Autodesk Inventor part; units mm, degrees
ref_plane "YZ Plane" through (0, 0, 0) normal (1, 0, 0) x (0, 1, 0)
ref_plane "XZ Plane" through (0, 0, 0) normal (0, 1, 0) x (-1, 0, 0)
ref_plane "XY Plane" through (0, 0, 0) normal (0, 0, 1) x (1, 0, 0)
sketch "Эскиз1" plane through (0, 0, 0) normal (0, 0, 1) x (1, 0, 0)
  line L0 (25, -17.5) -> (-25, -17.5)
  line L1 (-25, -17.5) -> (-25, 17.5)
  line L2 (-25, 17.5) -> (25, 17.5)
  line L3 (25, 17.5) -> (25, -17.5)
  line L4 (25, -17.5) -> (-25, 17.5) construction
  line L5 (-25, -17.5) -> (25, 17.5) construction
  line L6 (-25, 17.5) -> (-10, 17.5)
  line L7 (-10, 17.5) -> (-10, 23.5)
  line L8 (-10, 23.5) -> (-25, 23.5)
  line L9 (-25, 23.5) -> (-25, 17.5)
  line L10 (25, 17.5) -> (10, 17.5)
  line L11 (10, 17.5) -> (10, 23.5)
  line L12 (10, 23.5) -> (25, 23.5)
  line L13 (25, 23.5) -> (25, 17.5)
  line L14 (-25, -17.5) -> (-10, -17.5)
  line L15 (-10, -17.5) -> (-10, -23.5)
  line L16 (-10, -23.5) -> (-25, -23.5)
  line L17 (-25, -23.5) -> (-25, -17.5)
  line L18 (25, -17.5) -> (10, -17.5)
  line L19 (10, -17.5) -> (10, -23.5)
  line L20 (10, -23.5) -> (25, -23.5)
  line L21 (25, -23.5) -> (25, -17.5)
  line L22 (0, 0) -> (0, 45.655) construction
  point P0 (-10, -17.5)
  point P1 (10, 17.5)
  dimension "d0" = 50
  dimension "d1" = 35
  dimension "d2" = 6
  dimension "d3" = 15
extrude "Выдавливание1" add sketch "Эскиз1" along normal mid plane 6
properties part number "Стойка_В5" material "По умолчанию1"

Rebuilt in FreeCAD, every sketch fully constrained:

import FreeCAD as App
import Part
import Sketcher

V = App.Vector

doc = App.newDocument("Part")
body = doc.addObject("PartDesign::Body", "Body")

# Sketch on XY plane
sketch1 = doc.addObject("Sketcher::SketchObject", "Sketch")
body.addObject(sketch1)
sketch1.AttachmentSupport = (doc.XY_Plane, [""])
sketch1.MapMode = "FlatFace"
sketch1.addGeometry([
    Part.LineSegment(V(25, -24, 0), V(25, 24, 0)),  # 0
    Part.LineSegment(V(25, 24, 0), V(10, 24, 0)),  # 1
    Part.LineSegment(V(10, 24, 0), V(10, 18, 0)),  # 2
    Part.LineSegment(V(10, 18, 0), V(-10, 18, 0)),  # 3
    Part.LineSegment(V(-10, 18, 0), V(-10, 24, 0)),  # 4
    Part.LineSegment(V(-10, 24, 0), V(-25, 24, 0)),  # 5
    Part.LineSegment(V(-25, 24, 0), V(-25, -24, 0)),  # 6
    Part.LineSegment(V(-25, -24, 0), V(-10, -24, 0)),  # 7
    Part.LineSegment(V(-10, -24, 0), V(-10, -18, 0)),  # 8
    Part.LineSegment(V(-10, -18, 0), V(10, -18, 0)),  # 9
    Part.LineSegment(V(10, -18, 0), V(10, -24, 0)),  # 10
    Part.LineSegment(V(10, -24, 0), V(25, -24, 0)),  # 11
], False)
sketch1.addConstraint([
    Sketcher.Constraint("Coincident", 0, 2, 1, 1),
    Sketcher.Constraint("Coincident", 1, 2, 2, 1),
    Sketcher.Constraint("Coincident", 2, 2, 3, 1),
    Sketcher.Constraint("Coincident", 3, 2, 4, 1),
    Sketcher.Constraint("Coincident", 4, 2, 5, 1),
    Sketcher.Constraint("Coincident", 5, 2, 6, 1),
    Sketcher.Constraint("Coincident", 6, 2, 7, 1),
    Sketcher.Constraint("Coincident", 7, 2, 8, 1),
    Sketcher.Constraint("Coincident", 8, 2, 9, 1),
    Sketcher.Constraint("Coincident", 9, 2, 10, 1),
    Sketcher.Constraint("Coincident", 10, 2, 11, 1),
    Sketcher.Constraint("Coincident", 11, 2, 0, 1),
    Sketcher.Constraint("Vertical", 0),
    Sketcher.Constraint("Horizontal", 1),
    Sketcher.Constraint("Vertical", 2),
    Sketcher.Constraint("Horizontal", 3),
    Sketcher.Constraint("Vertical", 4),
    Sketcher.Constraint("Horizontal", 5),
    Sketcher.Constraint("Vertical", 6),
    Sketcher.Constraint("Horizontal", 7),
    Sketcher.Constraint("Vertical", 8),
    Sketcher.Constraint("Horizontal", 9),
    Sketcher.Constraint("Vertical", 10),
    Sketcher.Constraint("Horizontal", 11),
    Sketcher.Constraint("Symmetric", 0, 2, 6, 2, -1, 1),
    Sketcher.Constraint("Symmetric", 2, 2, 8, 2, -1, 1),
    Sketcher.Constraint("Symmetric", 4, 2, 10, 2, -1, 1),
    Sketcher.Constraint("Symmetric", 1, 2, 4, 2, -2),
    Sketcher.Constraint("DistanceX", 1, 2, 1, 1, 15.0),
    Sketcher.Constraint("DistanceY", 2, 2, 2, 1, 6.0),
    Sketcher.Constraint("DistanceX", 3, 2, 0, 2, 35.0),
    Sketcher.Constraint("DistanceY", 8, 2, 3, 2, 35.0),
])
pad1 = doc.addObject("PartDesign::Pad", "Pad")
body.addObject(pad1)
pad1.Profile = sketch1
pad1.Length = 6
pad1.Midplane = True

doc.recompute()
